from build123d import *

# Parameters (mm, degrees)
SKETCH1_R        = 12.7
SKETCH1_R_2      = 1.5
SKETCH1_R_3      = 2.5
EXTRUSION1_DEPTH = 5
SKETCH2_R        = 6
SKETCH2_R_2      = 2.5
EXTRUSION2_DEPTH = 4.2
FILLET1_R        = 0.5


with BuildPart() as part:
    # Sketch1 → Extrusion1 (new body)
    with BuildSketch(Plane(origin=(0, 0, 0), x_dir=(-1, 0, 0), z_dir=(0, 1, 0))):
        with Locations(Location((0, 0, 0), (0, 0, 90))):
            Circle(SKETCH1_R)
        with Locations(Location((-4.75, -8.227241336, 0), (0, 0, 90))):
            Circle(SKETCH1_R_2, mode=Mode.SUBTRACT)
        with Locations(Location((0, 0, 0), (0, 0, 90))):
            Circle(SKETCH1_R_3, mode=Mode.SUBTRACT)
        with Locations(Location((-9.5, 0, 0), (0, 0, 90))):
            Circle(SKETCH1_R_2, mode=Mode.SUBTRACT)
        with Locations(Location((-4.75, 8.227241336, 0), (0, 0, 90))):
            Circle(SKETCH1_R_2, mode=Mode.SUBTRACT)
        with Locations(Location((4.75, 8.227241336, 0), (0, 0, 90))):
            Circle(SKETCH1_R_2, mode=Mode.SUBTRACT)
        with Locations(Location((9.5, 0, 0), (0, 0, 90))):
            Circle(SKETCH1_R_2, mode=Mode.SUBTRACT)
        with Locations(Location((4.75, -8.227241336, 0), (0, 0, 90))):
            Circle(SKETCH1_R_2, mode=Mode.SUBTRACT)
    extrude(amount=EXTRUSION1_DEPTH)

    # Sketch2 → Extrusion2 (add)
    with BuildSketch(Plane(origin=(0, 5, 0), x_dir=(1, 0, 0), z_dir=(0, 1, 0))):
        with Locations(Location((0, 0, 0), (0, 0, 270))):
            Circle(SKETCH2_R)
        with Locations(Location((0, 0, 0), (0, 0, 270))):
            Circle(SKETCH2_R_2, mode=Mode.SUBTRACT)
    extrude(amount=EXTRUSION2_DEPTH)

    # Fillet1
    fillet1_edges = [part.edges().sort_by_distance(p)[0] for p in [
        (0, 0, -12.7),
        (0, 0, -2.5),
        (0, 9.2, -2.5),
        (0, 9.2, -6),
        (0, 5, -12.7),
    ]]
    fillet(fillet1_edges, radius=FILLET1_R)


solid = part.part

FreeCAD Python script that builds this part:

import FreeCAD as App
import Part
import Sketcher

V = App.Vector


def edges_at(feature, points):
    """Names of the edges that pass closest to the given points."""
    edges = feature.Shape.Edges
    near = lambda p: min(range(len(edges)), key=lambda i: edges[i].distToShape(Part.Vertex(*p))[0])
    return sorted({f"Edge{near(p) + 1}" for p in points})

doc = App.newDocument("Part")
body = doc.addObject("PartDesign::Body", "Body")

# Sketch on XZ plane
sketch1 = body.newObject("Sketcher::SketchObject", "Sketch")
sketch1.AttachmentSupport = (doc.getObject("XZ_Plane"), [""])
sketch1.MapMode = "FlatFace"
sketch1.addGeometry([
    Part.Circle(V(0, 0, 0), V(0, 0, 1), 12.7),  # 0
    Part.Circle(V(-4.8, -8.2, 0), V(0, 0, 1), 1.5),  # 1
    Part.Circle(V(-9.5, 0, 0), V(0, 0, 1), 1.5),  # 2
    Part.Circle(V(-4.8, 8.2, 0), V(0, 0, 1), 1.5),  # 3
    Part.Circle(V(4.8, -8.2, 0), V(0, 0, 1), 1.5),  # 4
    Part.Circle(V(9.5, 0, 0), V(0, 0, 1), 1.5),  # 5
    Part.Circle(V(0, 0, 0), V(0, 0, 1), 2.5),  # 6
    Part.Circle(V(4.8, 8.2, 0), V(0, 0, 1), 1.5),  # 7
], False)
sketch1.addConstraint([
    Sketcher.Constraint("Coincident", 0, 3, -1, 1),
    Sketcher.Constraint("Coincident", 6, 3, -1, 1),
    Sketcher.Constraint("Equal", 1, 2),
    Sketcher.Constraint("Equal", 2, 3),
    Sketcher.Constraint("Equal", 3, 4),
    Sketcher.Constraint("Equal", 4, 5),
    Sketcher.Constraint("Equal", 5, 7),
    Sketcher.Constraint("Symmetric", 3, 3, 4, 3, -1, 1),
    Sketcher.Constraint("Symmetric", 2, 3, 5, 3, -1, 1),
    Sketcher.Constraint("Symmetric", 1, 3, 7, 3, -1, 1),
    Sketcher.Constraint("Symmetric", 1, 3, 4, 3, -2),
    Sketcher.Constraint("PointOnObject", 2, 3, -1),
    Sketcher.Constraint("Diameter", 1, 3.0),
    Sketcher.Constraint("Diameter", 6, 5.0),
    Sketcher.Constraint("Diameter", 0, 25.4),
    Sketcher.Constraint("DistanceX", 2, 3, 5, 3, 19.0),
    Sketcher.Constraint("DistanceX", 1, 3, 4, 3, 9.5),
    Sketcher.Constraint("DistanceY", 1, 3, -1, 1, 8.227241),
])
pad1 = body.newObject("PartDesign::Pad", "Pad")
pad1.Profile = sketch1
pad1.Length = 5
pad1.Reversed = True

# Sketch on XZ plane
sketch2 = body.newObject("Sketcher::SketchObject", "Sketch001")
sketch2.AttachmentSupport = (doc.getObject("XZ_Plane"), [""])
sketch2.MapMode = "FlatFace"
sketch2.AttachmentOffset = App.Placement(V(0, 0, -5), App.Rotation())
sketch2.addGeometry([
    Part.Circle(V(0, 0, 0), V(0, 0, 1), 6),
    Part.Circle(V(0, 0, 0), V(0, 0, 1), 2.5),
], False)
sketch2.addConstraint([
    Sketcher.Constraint("Coincident", 0, 3, -1, 1),
    Sketcher.Constraint("Coincident", 1, 3, -1, 1),
    Sketcher.Constraint("Diameter", 0, 12.0),
    Sketcher.Constraint("Diameter", 1, 5.0),
])
pad2 = body.newObject("PartDesign::Pad", "Pad001")
pad2.Profile = sketch2
pad2.Length = 4.2
pad2.Reversed = True
doc.recompute()

fillet = body.newObject("PartDesign::Fillet", "Fillet")
fillet.Base = (pad2, edges_at(pad2, [
    (0, 0, -12.7),
    (0, 0, -2.5),
    (0, 9.2, -2.5),
    (0, 9.2, -6),
    (0, 5, -12.7),
]))
fillet.Radius = 0.5

doc.recompute()
